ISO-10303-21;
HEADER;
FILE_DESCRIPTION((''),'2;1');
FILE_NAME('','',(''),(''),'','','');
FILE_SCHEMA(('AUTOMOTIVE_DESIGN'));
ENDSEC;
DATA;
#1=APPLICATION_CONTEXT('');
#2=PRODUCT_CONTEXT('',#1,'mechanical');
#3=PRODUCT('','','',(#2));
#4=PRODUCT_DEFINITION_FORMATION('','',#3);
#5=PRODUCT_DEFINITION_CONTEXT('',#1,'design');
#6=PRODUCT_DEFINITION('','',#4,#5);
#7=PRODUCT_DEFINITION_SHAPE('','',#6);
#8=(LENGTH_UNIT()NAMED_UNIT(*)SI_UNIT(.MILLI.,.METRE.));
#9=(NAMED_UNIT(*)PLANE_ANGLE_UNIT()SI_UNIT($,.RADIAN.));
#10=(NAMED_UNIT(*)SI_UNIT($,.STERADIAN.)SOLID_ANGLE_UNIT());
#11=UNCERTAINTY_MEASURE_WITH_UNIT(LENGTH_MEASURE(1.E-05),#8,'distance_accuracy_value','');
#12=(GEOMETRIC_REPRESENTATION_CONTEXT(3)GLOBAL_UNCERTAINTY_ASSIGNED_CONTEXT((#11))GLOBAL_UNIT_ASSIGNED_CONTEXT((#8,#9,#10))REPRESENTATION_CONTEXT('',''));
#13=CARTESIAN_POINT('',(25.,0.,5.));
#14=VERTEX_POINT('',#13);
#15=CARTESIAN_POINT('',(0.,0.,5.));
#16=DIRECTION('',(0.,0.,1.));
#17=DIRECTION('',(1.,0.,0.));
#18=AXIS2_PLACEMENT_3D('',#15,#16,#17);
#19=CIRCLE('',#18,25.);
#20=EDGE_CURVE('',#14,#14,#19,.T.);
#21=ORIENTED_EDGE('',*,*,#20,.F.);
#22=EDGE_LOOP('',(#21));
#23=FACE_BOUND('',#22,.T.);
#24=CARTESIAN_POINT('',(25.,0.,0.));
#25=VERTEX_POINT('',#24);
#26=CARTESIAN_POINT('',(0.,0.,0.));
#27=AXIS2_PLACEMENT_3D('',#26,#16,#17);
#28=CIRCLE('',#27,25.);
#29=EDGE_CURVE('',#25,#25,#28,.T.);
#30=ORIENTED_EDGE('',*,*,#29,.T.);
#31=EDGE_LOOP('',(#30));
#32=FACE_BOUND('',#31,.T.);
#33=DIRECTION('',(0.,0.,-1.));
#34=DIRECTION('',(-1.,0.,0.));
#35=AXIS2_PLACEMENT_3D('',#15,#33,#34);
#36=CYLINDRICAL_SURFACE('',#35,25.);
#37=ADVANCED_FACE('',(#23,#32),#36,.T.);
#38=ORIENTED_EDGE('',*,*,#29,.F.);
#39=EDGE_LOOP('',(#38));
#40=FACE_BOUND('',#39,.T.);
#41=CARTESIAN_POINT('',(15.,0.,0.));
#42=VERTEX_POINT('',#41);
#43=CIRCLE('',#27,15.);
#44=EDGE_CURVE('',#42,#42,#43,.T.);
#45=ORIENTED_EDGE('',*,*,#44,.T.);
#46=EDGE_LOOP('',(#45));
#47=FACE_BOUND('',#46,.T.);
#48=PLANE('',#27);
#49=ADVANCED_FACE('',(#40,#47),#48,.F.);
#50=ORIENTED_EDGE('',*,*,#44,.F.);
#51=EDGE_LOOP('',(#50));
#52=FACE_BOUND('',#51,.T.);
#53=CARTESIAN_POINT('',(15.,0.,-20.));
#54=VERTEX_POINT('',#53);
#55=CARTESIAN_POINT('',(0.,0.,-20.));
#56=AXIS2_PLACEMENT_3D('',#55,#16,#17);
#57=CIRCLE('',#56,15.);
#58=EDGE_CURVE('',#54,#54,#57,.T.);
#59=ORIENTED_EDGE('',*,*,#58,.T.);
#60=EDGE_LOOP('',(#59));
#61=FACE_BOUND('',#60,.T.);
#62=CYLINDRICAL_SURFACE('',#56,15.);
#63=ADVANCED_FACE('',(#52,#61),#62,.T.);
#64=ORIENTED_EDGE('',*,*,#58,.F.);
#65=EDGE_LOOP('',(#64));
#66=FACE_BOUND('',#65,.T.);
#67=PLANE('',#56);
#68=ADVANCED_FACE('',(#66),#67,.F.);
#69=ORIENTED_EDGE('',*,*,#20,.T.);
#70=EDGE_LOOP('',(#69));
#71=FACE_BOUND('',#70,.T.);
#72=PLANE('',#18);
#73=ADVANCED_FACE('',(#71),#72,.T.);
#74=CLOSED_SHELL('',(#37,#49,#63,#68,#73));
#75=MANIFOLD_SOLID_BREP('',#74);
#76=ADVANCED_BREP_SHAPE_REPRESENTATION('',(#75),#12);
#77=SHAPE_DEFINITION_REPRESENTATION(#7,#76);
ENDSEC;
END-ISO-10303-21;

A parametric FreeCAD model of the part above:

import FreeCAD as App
import Part
import Sketcher
Q = App.Units.Quantity

doc = App.newDocument("Part")
body = doc.addObject("PartDesign::Body", "Body")

# Sketch on XY plane
sketch1 = body.newObject("Sketcher::SketchObject", "Sketch")
sketch1.AttachmentSupport = (doc.getObject("XY_Plane"), [""])
sketch1.MapMode = "FlatFace"
sketch1.addGeometry(Part.Circle(App.Vector(0, 0, 0), App.Vector(0, 0, 1), 25), False)
sketch1.addConstraint(Sketcher.Constraint("Coincident", 0, 3, -1, 1))
sketch1.addConstraint(Sketcher.Constraint("Diameter", 0, Q("50 mm")))
pad1 = body.newObject("PartDesign::Pad", "Pad")
pad1.Profile = sketch1
pad1.Length = 5

# Sketch on XY plane
sketch2 = body.newObject("Sketcher::SketchObject", "Sketch001")
sketch2.AttachmentSupport = (doc.getObject("XY_Plane"), [""])
sketch2.MapMode = "FlatFace"
sketch2.addGeometry(Part.Circle(App.Vector(0, 0, 0), App.Vector(0, 0, 1), 15), False)
sketch2.addConstraint(Sketcher.Constraint("Coincident", 0, 3, -1, 1))
sketch2.addConstraint(Sketcher.Constraint("Diameter", 0, Q("30 mm")))
pad2 = body.newObject("PartDesign::Pad", "Pad001")
pad2.Profile = sketch2
pad2.Length = 20
pad2.Reversed = True

doc.recompute()
